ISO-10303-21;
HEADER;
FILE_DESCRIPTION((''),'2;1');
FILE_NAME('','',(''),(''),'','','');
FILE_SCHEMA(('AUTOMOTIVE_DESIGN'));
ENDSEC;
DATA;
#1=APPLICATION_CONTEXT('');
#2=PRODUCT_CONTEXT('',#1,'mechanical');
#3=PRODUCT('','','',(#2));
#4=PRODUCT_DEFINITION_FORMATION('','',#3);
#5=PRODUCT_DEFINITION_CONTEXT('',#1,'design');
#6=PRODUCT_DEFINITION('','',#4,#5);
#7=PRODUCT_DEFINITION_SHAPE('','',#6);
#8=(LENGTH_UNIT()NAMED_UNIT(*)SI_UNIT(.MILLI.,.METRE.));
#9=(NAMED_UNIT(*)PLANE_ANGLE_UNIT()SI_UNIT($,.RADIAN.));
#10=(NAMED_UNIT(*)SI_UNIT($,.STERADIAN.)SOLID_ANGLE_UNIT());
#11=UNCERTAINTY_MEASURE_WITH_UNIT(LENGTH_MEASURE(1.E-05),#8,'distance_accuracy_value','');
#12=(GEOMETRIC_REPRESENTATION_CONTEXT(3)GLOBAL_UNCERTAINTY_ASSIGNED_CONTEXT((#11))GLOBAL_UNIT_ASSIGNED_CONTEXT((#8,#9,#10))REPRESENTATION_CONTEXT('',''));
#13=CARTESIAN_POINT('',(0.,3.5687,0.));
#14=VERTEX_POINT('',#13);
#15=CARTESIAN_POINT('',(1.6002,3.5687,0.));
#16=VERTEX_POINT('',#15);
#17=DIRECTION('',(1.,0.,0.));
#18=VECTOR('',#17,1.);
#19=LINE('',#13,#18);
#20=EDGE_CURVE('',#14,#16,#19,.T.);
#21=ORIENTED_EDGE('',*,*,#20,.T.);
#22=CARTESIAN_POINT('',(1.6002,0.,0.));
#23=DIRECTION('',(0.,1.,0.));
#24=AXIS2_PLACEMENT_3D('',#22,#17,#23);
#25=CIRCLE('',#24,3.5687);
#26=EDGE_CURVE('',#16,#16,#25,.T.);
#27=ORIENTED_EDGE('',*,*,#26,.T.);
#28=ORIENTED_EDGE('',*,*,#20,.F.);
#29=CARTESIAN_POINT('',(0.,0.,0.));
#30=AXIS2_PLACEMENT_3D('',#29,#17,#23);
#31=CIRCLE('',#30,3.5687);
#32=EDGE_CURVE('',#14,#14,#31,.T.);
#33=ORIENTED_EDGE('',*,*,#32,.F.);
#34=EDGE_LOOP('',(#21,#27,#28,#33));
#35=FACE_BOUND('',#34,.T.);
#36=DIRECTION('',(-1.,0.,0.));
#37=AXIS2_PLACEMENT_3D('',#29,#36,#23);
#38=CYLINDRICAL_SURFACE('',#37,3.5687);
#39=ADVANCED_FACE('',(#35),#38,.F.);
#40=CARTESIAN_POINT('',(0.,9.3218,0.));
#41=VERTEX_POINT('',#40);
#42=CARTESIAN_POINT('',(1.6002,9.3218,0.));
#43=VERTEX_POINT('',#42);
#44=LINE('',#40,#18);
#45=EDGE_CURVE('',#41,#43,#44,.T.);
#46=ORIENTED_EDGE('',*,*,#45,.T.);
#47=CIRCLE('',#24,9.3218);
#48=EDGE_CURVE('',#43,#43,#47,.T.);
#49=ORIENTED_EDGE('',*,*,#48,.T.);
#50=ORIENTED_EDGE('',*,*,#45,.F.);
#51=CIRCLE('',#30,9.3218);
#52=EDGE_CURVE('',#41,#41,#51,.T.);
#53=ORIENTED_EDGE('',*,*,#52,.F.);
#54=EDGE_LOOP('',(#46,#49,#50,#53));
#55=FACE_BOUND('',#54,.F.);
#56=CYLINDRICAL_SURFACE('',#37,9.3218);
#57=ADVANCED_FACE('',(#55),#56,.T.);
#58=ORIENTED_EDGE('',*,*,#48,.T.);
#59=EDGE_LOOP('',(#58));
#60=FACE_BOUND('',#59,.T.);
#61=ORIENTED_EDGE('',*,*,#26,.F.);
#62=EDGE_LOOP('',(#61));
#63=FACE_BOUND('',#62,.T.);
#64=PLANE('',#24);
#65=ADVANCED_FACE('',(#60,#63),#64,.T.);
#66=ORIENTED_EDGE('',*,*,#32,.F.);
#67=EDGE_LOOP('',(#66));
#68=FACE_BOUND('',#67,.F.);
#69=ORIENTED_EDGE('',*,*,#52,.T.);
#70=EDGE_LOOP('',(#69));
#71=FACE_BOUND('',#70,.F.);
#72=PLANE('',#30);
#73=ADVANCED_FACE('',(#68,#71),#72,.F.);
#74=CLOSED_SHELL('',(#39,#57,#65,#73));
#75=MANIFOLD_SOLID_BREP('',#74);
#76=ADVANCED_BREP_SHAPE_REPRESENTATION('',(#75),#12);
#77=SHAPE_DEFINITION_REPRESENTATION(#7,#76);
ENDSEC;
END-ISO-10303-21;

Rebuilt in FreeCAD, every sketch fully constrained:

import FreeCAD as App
import Part
import Sketcher

V = App.Vector
Q = App.Units.Quantity

doc = App.newDocument("Part")
body = doc.addObject("PartDesign::Body", "Body")

sketch1 = body.newObject("Sketcher::SketchObject", "Sketch")
sketch1.AttachmentSupport = (doc.getObject("YZ_Plane"), [""])
sketch1.MapMode = "FlatFace"
sketch1.addGeometry(Part.Circle(V(0, 0, 0), V(0, 0, 1), 9.3218), False)
sketch1.addGeometry(Part.Circle(V(0, 0, 0), V(0, 0, 1), 3.5687), False)
sketch1.addConstraint(Sketcher.Constraint("Coincident", 0, 3, -1, 1))
sketch1.addConstraint(Sketcher.Constraint("Coincident", 1, 3, -1, 1))
sketch1.addConstraint(Sketcher.Constraint("Diameter", 0, Q("0.734 in")))
sketch1.addConstraint(Sketcher.Constraint("Diameter", 1, Q("0.281 in")))
pad1 = body.newObject("PartDesign::Pad", "Pad")
pad1.Profile = sketch1
pad1.Length = Q("0.063 in")

doc.recompute()
